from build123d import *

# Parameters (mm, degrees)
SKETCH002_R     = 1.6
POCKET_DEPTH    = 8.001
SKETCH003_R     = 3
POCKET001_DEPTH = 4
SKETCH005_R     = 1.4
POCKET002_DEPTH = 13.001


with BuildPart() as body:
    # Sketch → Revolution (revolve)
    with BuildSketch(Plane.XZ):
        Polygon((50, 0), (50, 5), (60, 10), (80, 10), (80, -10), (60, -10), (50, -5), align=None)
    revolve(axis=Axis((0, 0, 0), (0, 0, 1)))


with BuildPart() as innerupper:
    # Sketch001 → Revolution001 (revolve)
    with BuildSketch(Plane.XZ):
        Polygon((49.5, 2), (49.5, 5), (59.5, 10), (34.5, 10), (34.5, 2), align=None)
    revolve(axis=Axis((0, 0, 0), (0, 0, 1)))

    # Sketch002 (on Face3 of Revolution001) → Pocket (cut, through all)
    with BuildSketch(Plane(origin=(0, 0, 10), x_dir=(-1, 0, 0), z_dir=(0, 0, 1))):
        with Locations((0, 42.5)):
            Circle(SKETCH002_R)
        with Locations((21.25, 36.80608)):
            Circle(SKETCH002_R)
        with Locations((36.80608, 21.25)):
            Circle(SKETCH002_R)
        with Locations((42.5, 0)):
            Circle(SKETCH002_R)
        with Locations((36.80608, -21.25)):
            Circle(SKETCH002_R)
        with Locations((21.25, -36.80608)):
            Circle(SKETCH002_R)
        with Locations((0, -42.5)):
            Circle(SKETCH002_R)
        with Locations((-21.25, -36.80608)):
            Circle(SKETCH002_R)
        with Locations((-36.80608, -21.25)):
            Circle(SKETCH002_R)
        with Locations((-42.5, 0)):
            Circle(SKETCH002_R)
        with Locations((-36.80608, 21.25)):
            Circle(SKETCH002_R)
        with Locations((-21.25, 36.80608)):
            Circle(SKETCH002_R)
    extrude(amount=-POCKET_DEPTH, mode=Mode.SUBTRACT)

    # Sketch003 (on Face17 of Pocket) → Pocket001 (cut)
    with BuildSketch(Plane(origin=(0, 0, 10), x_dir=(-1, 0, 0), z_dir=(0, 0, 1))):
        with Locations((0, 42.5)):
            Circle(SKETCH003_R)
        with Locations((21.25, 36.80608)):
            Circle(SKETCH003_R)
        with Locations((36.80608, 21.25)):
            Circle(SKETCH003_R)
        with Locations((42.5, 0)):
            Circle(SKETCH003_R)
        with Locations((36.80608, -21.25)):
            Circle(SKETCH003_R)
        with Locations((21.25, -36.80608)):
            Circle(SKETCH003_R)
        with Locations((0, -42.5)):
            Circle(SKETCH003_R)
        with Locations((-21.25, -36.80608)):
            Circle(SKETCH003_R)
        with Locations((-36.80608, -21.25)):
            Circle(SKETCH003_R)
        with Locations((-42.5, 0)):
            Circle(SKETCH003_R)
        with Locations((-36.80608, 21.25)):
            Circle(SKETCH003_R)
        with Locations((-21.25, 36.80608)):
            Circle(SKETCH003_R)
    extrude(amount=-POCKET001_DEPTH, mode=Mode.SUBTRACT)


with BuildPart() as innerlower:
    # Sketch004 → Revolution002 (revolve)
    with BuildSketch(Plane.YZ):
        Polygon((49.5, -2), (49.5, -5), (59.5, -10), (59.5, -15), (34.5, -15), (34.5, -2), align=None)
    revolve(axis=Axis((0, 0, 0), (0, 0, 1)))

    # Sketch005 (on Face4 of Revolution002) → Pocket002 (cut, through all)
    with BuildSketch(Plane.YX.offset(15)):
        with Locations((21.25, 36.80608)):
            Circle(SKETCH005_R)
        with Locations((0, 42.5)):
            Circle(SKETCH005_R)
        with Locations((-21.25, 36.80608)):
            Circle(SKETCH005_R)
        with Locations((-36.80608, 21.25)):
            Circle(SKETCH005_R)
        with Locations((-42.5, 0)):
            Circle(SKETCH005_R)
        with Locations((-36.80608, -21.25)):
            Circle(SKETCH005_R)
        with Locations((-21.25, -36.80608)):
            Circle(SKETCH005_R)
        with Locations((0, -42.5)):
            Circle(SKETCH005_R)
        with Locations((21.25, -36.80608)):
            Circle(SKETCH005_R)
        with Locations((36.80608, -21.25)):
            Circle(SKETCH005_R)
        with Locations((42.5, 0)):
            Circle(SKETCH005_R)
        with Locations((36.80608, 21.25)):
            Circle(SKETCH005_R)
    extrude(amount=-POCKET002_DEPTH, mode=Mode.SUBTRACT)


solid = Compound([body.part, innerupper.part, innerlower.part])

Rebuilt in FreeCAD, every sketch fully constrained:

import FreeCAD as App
import Part
import Sketcher


def add_polygon(sketch, points):
    """Adds a closed chain of lines whose ends are joined by coincident constraints."""
    first, n = sketch.GeometryCount, len(points)
    for a, b in zip(points, points[1:] + points[:1]):
        sketch.addGeometry(Part.LineSegment(App.Vector(*a, 0), App.Vector(*b, 0)), False)
    for i in range(n):
        sketch.addConstraint(Sketcher.Constraint("Coincident", first + i, 2, first + (i + 1) % n, 1))

doc = App.newDocument("Part")
params = doc.addObject("Spreadsheet::Sheet", "Params")
for row, (alias, value) in enumerate([
    ("sketch1_width", "20 mm"),
    ("sketch1_height", "10 mm"),
    ("revolution_angle", "360 deg"),
    ("sketch2_width", "25 mm"),
    ("sketch2_width2", "15 mm"),
    ("sketch2_height", "3 mm"),
    ("sketch2_height2", "8 mm"),
    ("revolution2_angle", "360 deg"),
    ("sketch3_diameter", "3.2 mm"),
    ("sketch4_diameter", "6 mm"),
    ("pocket2_length", "4 mm"),
    ("sketch5_width", "15 mm"),
    ("sketch5_width2", "25 mm"),
    ("sketch5_height", "3 mm"),
    ("sketch5_height2", "13 mm"),
    ("sketch5_height3", "5 mm"),
    ("revolution3_angle", "360 deg"),
    ("sketch6_diameter", "2.8 mm"),
], start=1):
    params.set(f"A{row}", alias)
    params.set(f"B{row}", "=" + value)
    params.setAlias(f"B{row}", alias)

body = doc.addObject("PartDesign::Body", "Body")

sketch1 = doc.addObject("Sketcher::SketchObject", "Sketch")
body.addObject(sketch1)
sketch1.AttachmentSupport = (doc.XZ_Plane, [""])
sketch1.MapMode = "FlatFace"
add_polygon(sketch1, [(50, 5), (50, -5), (60, -10), (80, -10), (80, 10), (60, 10)])
sketch1.addConstraint(Sketcher.Constraint("Vertical", 0))
sketch1.addConstraint(Sketcher.Constraint("Horizontal", 2))
sketch1.addConstraint(Sketcher.Constraint("Vertical", 3))
sketch1.addConstraint(Sketcher.Constraint("Horizontal", 4))
sketch1.addConstraint(Sketcher.Constraint("Symmetric", 1, 2, 4, 2, -1))
sketch1.addConstraint(Sketcher.Constraint("Equal", 4, 3))
sketch1.addConstraint(Sketcher.Constraint("Equal", 1, 5))
sketch1.addConstraint(Sketcher.Constraint("DistanceX", 2, 1, 2, 2, 20.0))
sketch1.addConstraint(Sketcher.Constraint("DistanceY", 0, 2, 0, 1, 10.0))
sketch1.addConstraint(Sketcher.Constraint("DistanceX", -1, 1, 0, 2, 50.0))
sketch1.addConstraint(Sketcher.Constraint("DistanceX", -1, 1, 1, 2, 60.0))
sketch1.setExpression("Constraints[13]", "Params.sketch1_width")
sketch1.setExpression("Constraints[14]", "Params.sketch1_height")
revolution = doc.addObject("PartDesign::Revolution", "Revolution")
body.addObject(revolution)
revolution.Profile = sketch1
revolution.ReferenceAxis = (sketch1, ["V_Axis"])
revolution.setExpression("Angle", "Params.revolution_angle")
body2 = doc.addObject("PartDesign::Body", "Body001")

sketch2 = doc.addObject("Sketcher::SketchObject", "Sketch001")
body2.addObject(sketch2)
sketch2.AttachmentSupport = (doc.getObject("XZ_Plane001"), [""])
sketch2.MapMode = "FlatFace"
add_polygon(sketch2, [(49.5, 2), (49.5, 5), (59.5, 10), (34.5, 10), (34.5, 2)])
sketch2.addConstraint(Sketcher.Constraint("Vertical", 0))
sketch2.addConstraint(Sketcher.Constraint("Horizontal", 2))
sketch2.addConstraint(Sketcher.Constraint("Vertical", 3))
sketch2.addConstraint(Sketcher.Constraint("Horizontal", 4))
sketch2.addConstraint(Sketcher.Constraint("DistanceX", 2, 2, 2, 1, 25.0))
sketch2.addConstraint(Sketcher.Constraint("DistanceX", 4, 1, 4, 2, 15.0))
sketch2.addConstraint(Sketcher.Constraint("DistanceY", 0, 1, 0, 2, 3.0))
sketch2.addConstraint(Sketcher.Constraint("DistanceY", 3, 2, 3, 1, 8.0))
sketch2.addConstraint(Sketcher.Constraint("DistanceY", -1, 1, 0, 2, 5.0))
sketch2.addConstraint(Sketcher.Constraint("DistanceX", -1, 1, 0, 2, 49.5))
sketch2.setExpression("Constraints[9]", "Params.sketch2_width")
sketch2.setExpression("Constraints[10]", "Params.sketch2_width2")
sketch2.setExpression("Constraints[11]", "Params.sketch2_height")
sketch2.setExpression("Constraints[12]", "Params.sketch2_height2")
revolution2 = doc.addObject("PartDesign::Revolution", "Revolution001")
body2.addObject(revolution2)
revolution2.Profile = sketch2
revolution2.ReferenceAxis = (sketch2, ["V_Axis"])
revolution2.setExpression("Angle", "Params.revolution2_angle")

sketch3 = doc.addObject("Sketcher::SketchObject", "Sketch002")
body2.addObject(sketch3)
sketch3.AttachmentSupport = (doc.getObject("XY_Plane001"), [""])
sketch3.MapMode = "FlatFace"
sketch3.AttachmentOffset = App.Placement(App.Vector(0, 0, 10), App.Rotation())
sketch3.addGeometry(Part.Circle(App.Vector(0, -42.5, 0), App.Vector(0, 0, 1), 1.6), False)
sketch3.addGeometry(Part.Circle(App.Vector(-21.2, -36.8, 0), App.Vector(0, 0, 1), 1.6), False)
sketch3.addGeometry(Part.Circle(App.Vector(-36.8, -21.2, 0), App.Vector(0, 0, 1), 1.6), False)
sketch3.addGeometry(Part.Circle(App.Vector(-42.5, 0, 0), App.Vector(0, 0, 1), 1.6), False)
sketch3.addGeometry(Part.Circle(App.Vector(-36.8, 21.2, 0), App.Vector(0, 0, 1), 1.6), False)
sketch3.addGeometry(Part.Circle(App.Vector(-21.2, 36.8, 0), App.Vector(0, 0, 1), 1.6), False)
sketch3.addGeometry(Part.Circle(App.Vector(0, 42.5, 0), App.Vector(0, 0, 1), 1.6), False)
sketch3.addGeometry(Part.Circle(App.Vector(21.2, 36.8, 0), App.Vector(0, 0, 1), 1.6), False)
sketch3.addGeometry(Part.Circle(App.Vector(36.8, 21.2, 0), App.Vector(0, 0, 1), 1.6), False)
sketch3.addGeometry(Part.Circle(App.Vector(42.5, 0, 0), App.Vector(0, 0, 1), 1.6), False)
sketch3.addGeometry(Part.Circle(App.Vector(36.8, -21.2, 0), App.Vector(0, 0, 1), 1.6), False)
sketch3.addGeometry(Part.Circle(App.Vector(21.2, -36.8, 0), App.Vector(0, 0, 1), 1.6), False)
sketch3.addConstraint(Sketcher.Constraint("Equal", 0, 1))
sketch3.addConstraint(Sketcher.Constraint("Equal", 1, 2))
sketch3.addConstraint(Sketcher.Constraint("Equal", 2, 3))
sketch3.addConstraint(Sketcher.Constraint("Equal", 3, 4))
sketch3.addConstraint(Sketcher.Constraint("Equal", 4, 5))
sketch3.addConstraint(Sketcher.Constraint("Equal", 5, 6))
sketch3.addConstraint(Sketcher.Constraint("Equal", 6, 7))
sketch3.addConstraint(Sketcher.Constraint("Equal", 7, 8))
sketch3.addConstraint(Sketcher.Constraint("Equal", 8, 9))
sketch3.addConstraint(Sketcher.Constraint("Equal", 9, 10))
sketch3.addConstraint(Sketcher.Constraint("Equal", 10, 11))
sketch3.addConstraint(Sketcher.Constraint("Symmetric", 0, 3, 6, 3, -1, 1))
sketch3.addConstraint(Sketcher.Constraint("Symmetric", 1, 3, 7, 3, -1, 1))
sketch3.addConstraint(Sketcher.Constraint("Symmetric", 2, 3, 8, 3, -1, 1))
sketch3.addConstraint(Sketcher.Constraint("Symmetric", 3, 3, 9, 3, -1, 1))
sketch3.addConstraint(Sketcher.Constraint("Symmetric", 4, 3, 10, 3, -1, 1))
sketch3.addConstraint(Sketcher.Constraint("Symmetric", 5, 3, 11, 3, -1, 1))
sketch3.addConstraint(Sketcher.Constraint("Symmetric", 5, 3, 7, 3, -2))
sketch3.addConstraint(Sketcher.Constraint("Symmetric", 4, 3, 8, 3, -2))
sketch3.addConstraint(Sketcher.Constraint("PointOnObject", 0, 3, -2))
sketch3.addConstraint(Sketcher.Constraint("PointOnObject", 3, 3, -1))
sketch3.addConstraint(Sketcher.Constraint("Diameter", 0, 3.2))
sketch3.addConstraint(Sketcher.Constraint("DistanceY", 0, 3, -1, 1, 42.5))
sketch3.addConstraint(Sketcher.Constraint("DistanceX", 3, 3, -1, 1, 42.5))
sketch3.addConstraint(Sketcher.Constraint("DistanceY", 2, 3, 4, 3, 42.5))
sketch3.addConstraint(Sketcher.Constraint("DistanceX", 5, 3, 7, 3, 42.5))
sketch3.addConstraint(Sketcher.Constraint("DistanceY", 1, 3, -1, 1, 36.80608))
sketch3.addConstraint(Sketcher.Constraint("DistanceX", 2, 3, -1, 1, 36.80608))
sketch3.setExpression("Constraints[21]", "Params.sketch3_diameter")
pocket1 = doc.addObject("PartDesign::Pocket", "Pocket")
body2.addObject(pocket1)
pocket1.Profile = sketch3
pocket1.Type = "ThroughAll"

sketch4 = doc.addObject("Sketcher::SketchObject", "Sketch003")
body2.addObject(sketch4)
sketch4.AttachmentSupport = (doc.getObject("XY_Plane001"), [""])
sketch4.MapMode = "FlatFace"
sketch4.AttachmentOffset = App.Placement(App.Vector(0, 0, 10), App.Rotation())
sketch4.addGeometry(Part.Circle(App.Vector(0, -42.5, 0), App.Vector(0, 0, 1), 3), False)
sketch4.addGeometry(Part.Circle(App.Vector(-21.2, -36.8, 0), App.Vector(0, 0, 1), 3), False)
sketch4.addGeometry(Part.Circle(App.Vector(-36.8, -21.2, 0), App.Vector(0, 0, 1), 3), False)
sketch4.addGeometry(Part.Circle(App.Vector(-42.5, 0, 0), App.Vector(0, 0, 1), 3), False)
sketch4.addGeometry(Part.Circle(App.Vector(-36.8, 21.2, 0), App.Vector(0, 0, 1), 3), False)
sketch4.addGeometry(Part.Circle(App.Vector(-21.2, 36.8, 0), App.Vector(0, 0, 1), 3), False)
sketch4.addGeometry(Part.Circle(App.Vector(0, 42.5, 0), App.Vector(0, 0, 1), 3), False)
sketch4.addGeometry(Part.Circle(App.Vector(21.2, 36.8, 0), App.Vector(0, 0, 1), 3), False)
sketch4.addGeometry(Part.Circle(App.Vector(36.8, 21.2, 0), App.Vector(0, 0, 1), 3), False)
sketch4.addGeometry(Part.Circle(App.Vector(42.5, 0, 0), App.Vector(0, 0, 1), 3), False)
sketch4.addGeometry(Part.Circle(App.Vector(36.8, -21.2, 0), App.Vector(0, 0, 1), 3), False)
sketch4.addGeometry(Part.Circle(App.Vector(21.2, -36.8, 0), App.Vector(0, 0, 1), 3), False)
sketch4.addConstraint(Sketcher.Constraint("Equal", 0, 1))
sketch4.addConstraint(Sketcher.Constraint("Equal", 1, 2))
sketch4.addConstraint(Sketcher.Constraint("Equal", 2, 3))
sketch4.addConstraint(Sketcher.Constraint("Equal", 3, 4))
sketch4.addConstraint(Sketcher.Constraint("Equal", 4, 5))
sketch4.addConstraint(Sketcher.Constraint("Equal", 5, 6))
sketch4.addConstraint(Sketcher.Constraint("Equal", 6, 7))
sketch4.addConstraint(Sketcher.Constraint("Equal", 7, 8))
sketch4.addConstraint(Sketcher.Constraint("Equal", 8, 9))
sketch4.addConstraint(Sketcher.Constraint("Equal", 9, 10))
sketch4.addConstraint(Sketcher.Constraint("Equal", 10, 11))
sketch4.addConstraint(Sketcher.Constraint("Symmetric", 0, 3, 6, 3, -1, 1))
sketch4.addConstraint(Sketcher.Constraint("Symmetric", 1, 3, 7, 3, -1, 1))
sketch4.addConstraint(Sketcher.Constraint("Symmetric", 2, 3, 8, 3, -1, 1))
sketch4.addConstraint(Sketcher.Constraint("Symmetric", 3, 3, 9, 3, -1, 1))
sketch4.addConstraint(Sketcher.Constraint("Symmetric", 4, 3, 10, 3, -1, 1))
sketch4.addConstraint(Sketcher.Constraint("Symmetric", 5, 3, 11, 3, -1, 1))
sketch4.addConstraint(Sketcher.Constraint("Symmetric", 5, 3, 7, 3, -2))
sketch4.addConstraint(Sketcher.Constraint("Symmetric", 4, 3, 8, 3, -2))
sketch4.addConstraint(Sketcher.Constraint("PointOnObject", 0, 3, -2))
sketch4.addConstraint(Sketcher.Constraint("PointOnObject", 3, 3, -1))
sketch4.addConstraint(Sketcher.Constraint("Diameter", 0, 6.0))
sketch4.addConstraint(Sketcher.Constraint("DistanceY", 0, 3, -1, 1, 42.5))
sketch4.addConstraint(Sketcher.Constraint("DistanceX", 3, 3, -1, 1, 42.5))
sketch4.addConstraint(Sketcher.Constraint("DistanceY", 2, 3, 4, 3, 42.5))
sketch4.addConstraint(Sketcher.Constraint("DistanceX", 5, 3, 7, 3, 42.5))
sketch4.addConstraint(Sketcher.Constraint("DistanceY", 1, 3, -1, 1, 36.80608))
sketch4.addConstraint(Sketcher.Constraint("DistanceX", 2, 3, -1, 1, 36.80608))
sketch4.setExpression("Constraints[21]", "Params.sketch4_diameter")
pocket2 = doc.addObject("PartDesign::Pocket", "Pocket001")
body2.addObject(pocket2)
pocket2.Profile = sketch4
pocket2.setExpression("Length", "Params.pocket2_length")
body3 = doc.addObject("PartDesign::Body", "Body002")

sketch5 = doc.addObject("Sketcher::SketchObject", "Sketch004")
body3.addObject(sketch5)
sketch5.AttachmentSupport = (doc.getObject("YZ_Plane002"), [""])
sketch5.MapMode = "FlatFace"
add_polygon(sketch5, [(49.5, -5), (49.5, -2), (34.5, -2), (34.5, -15), (59.5, -15), (59.5, -10)])
sketch5.addConstraint(Sketcher.Constraint("Vertical", 0))
sketch5.addConstraint(Sketcher.Constraint("Horizontal", 1))
sketch5.addConstraint(Sketcher.Constraint("Vertical", 2))
sketch5.addConstraint(Sketcher.Constraint("Horizontal", 3))
sketch5.addConstraint(Sketcher.Constraint("Vertical", 4))
sketch5.addConstraint(Sketcher.Constraint("DistanceX", 1, 2, 1, 1, 15.0))
sketch5.addConstraint(Sketcher.Constraint("DistanceX", 3, 1, 3, 2, 25.0))
sketch5.addConstraint(Sketcher.Constraint("DistanceY", 0, 1, 0, 2, 3.0))
sketch5.addConstraint(Sketcher.Constraint("DistanceY", 2, 2, 2, 1, 13.0))
sketch5.addConstraint(Sketcher.Constraint("DistanceY", 4, 1, 4, 2, 5.0))
sketch5.addConstraint(Sketcher.Constraint("DistanceY", 0, 2, -1, 1, 2.0))
sketch5.addConstraint(Sketcher.Constraint("DistanceX", -1, 1, 0, 2, 49.5))
sketch5.setExpression("Constraints[11]", "Params.sketch5_width")
sketch5.setExpression("Constraints[12]", "Params.sketch5_width2")
sketch5.setExpression("Constraints[13]", "Params.sketch5_height")
sketch5.setExpression("Constraints[14]", "Params.sketch5_height2")
sketch5.setExpression("Constraints[15]", "Params.sketch5_height3")
revolution3 = doc.addObject("PartDesign::Revolution", "Revolution002")
body3.addObject(revolution3)
revolution3.Profile = sketch5
revolution3.ReferenceAxis = (sketch5, ["V_Axis"])
revolution3.setExpression("Angle", "Params.revolution3_angle")

sketch6 = doc.addObject("Sketcher::SketchObject", "Sketch005")
body3.addObject(sketch6)
sketch6.AttachmentSupport = (doc.getObject("XY_Plane002"), [""])
sketch6.MapMode = "FlatFace"
sketch6.AttachmentOffset = App.Placement(App.Vector(0, 0, -15), App.Rotation())
sketch6.addGeometry(Part.Circle(App.Vector(36.8, 21.2, 0), App.Vector(0, 0, 1), 1.4), False)
sketch6.addGeometry(Part.Circle(App.Vector(42.5, 0, 0), App.Vector(0, 0, 1), 1.4), False)
sketch6.addGeometry(Part.Circle(App.Vector(36.8, -21.2, 0), App.Vector(0, 0, 1), 1.4), False)
sketch6.addGeometry(Part.Circle(App.Vector(21.2, -36.8, 0), App.Vector(0, 0, 1), 1.4), False)
sketch6.addGeometry(Part.Circle(App.Vector(0, -42.5, 0), App.Vector(0, 0, 1), 1.4), False)
sketch6.addGeometry(Part.Circle(App.Vector(-21.2, -36.8, 0), App.Vector(0, 0, 1), 1.4), False)
sketch6.addGeometry(Part.Circle(App.Vector(-36.8, -21.2, 0), App.Vector(0, 0, 1), 1.4), False)
sketch6.addGeometry(Part.Circle(App.Vector(-42.5, 0, 0), App.Vector(0, 0, 1), 1.4), False)
sketch6.addGeometry(Part.Circle(App.Vector(-36.8, 21.2, 0), App.Vector(0, 0, 1), 1.4), False)
sketch6.addGeometry(Part.Circle(App.Vector(-21.2, 36.8, 0), App.Vector(0, 0, 1), 1.4), False)
sketch6.addGeometry(Part.Circle(App.Vector(0, 42.5, 0), App.Vector(0, 0, 1), 1.4), False)
sketch6.addGeometry(Part.Circle(App.Vector(21.2, 36.8, 0), App.Vector(0, 0, 1), 1.4), False)
sketch6.addConstraint(Sketcher.Constraint("Equal", 0, 1))
sketch6.addConstraint(Sketcher.Constraint("Equal", 1, 2))
sketch6.addConstraint(Sketcher.Constraint("Equal", 2, 3))
sketch6.addConstraint(Sketcher.Constraint("Equal", 3, 4))
sketch6.addConstraint(Sketcher.Constraint("Equal", 4, 5))
sketch6.addConstraint(Sketcher.Constraint("Equal", 5, 6))
sketch6.addConstraint(Sketcher.Constraint("Equal", 6, 7))
sketch6.addConstraint(Sketcher.Constraint("Equal", 7, 8))
sketch6.addConstraint(Sketcher.Constraint("Equal", 8, 9))
sketch6.addConstraint(Sketcher.Constraint("Equal", 9, 10))
sketch6.addConstraint(Sketcher.Constraint("Equal", 10, 11))
sketch6.addConstraint(Sketcher.Constraint("Symmetric", 0, 3, 6, 3, -1, 1))
sketch6.addConstraint(Sketcher.Constraint("Symmetric", 1, 3, 7, 3, -1, 1))
sketch6.addConstraint(Sketcher.Constraint("Symmetric", 2, 3, 8, 3, -1, 1))
sketch6.addConstraint(Sketcher.Constraint("Symmetric", 3, 3, 9, 3, -1, 1))
sketch6.addConstraint(Sketcher.Constraint("Symmetric", 4, 3, 10, 3, -1, 1))
sketch6.addConstraint(Sketcher.Constraint("Symmetric", 5, 3, 11, 3, -1, 1))
sketch6.addConstraint(Sketcher.Constraint("Symmetric", 3, 3, 5, 3, -2))
sketch6.addConstraint(Sketcher.Constraint("Symmetric", 2, 3, 6, 3, -2))
sketch6.addConstraint(Sketcher.Constraint("PointOnObject", 1, 3, -1))
sketch6.addConstraint(Sketcher.Constraint("PointOnObject", 4, 3, -2))
sketch6.addConstraint(Sketcher.Constraint("Diameter", 0, 2.8))
sketch6.addConstraint(Sketcher.Constraint("DistanceX", -1, 1, 1, 3, 42.5))
sketch6.addConstraint(Sketcher.Constraint("DistanceY", 4, 3, -1, 1, 42.5))
sketch6.addConstraint(Sketcher.Constraint("DistanceY", 2, 3, 0, 3, 42.5))
sketch6.addConstraint(Sketcher.Constraint("DistanceX", 5, 3, 3, 3, 42.5))
sketch6.addConstraint(Sketcher.Constraint("DistanceX", -1, 1, 0, 3, 36.80608))
sketch6.addConstraint(Sketcher.Constraint("DistanceY", 3, 3, -1, 1, 36.80608))
sketch6.setExpression("Constraints[21]", "Params.sketch6_diameter")
pocket3 = doc.addObject("PartDesign::Pocket", "Pocket002")
body3.addObject(pocket3)
pocket3.Profile = sketch6
pocket3.Type = "ThroughAll"
pocket3.Reversed = True

doc.recompute()
